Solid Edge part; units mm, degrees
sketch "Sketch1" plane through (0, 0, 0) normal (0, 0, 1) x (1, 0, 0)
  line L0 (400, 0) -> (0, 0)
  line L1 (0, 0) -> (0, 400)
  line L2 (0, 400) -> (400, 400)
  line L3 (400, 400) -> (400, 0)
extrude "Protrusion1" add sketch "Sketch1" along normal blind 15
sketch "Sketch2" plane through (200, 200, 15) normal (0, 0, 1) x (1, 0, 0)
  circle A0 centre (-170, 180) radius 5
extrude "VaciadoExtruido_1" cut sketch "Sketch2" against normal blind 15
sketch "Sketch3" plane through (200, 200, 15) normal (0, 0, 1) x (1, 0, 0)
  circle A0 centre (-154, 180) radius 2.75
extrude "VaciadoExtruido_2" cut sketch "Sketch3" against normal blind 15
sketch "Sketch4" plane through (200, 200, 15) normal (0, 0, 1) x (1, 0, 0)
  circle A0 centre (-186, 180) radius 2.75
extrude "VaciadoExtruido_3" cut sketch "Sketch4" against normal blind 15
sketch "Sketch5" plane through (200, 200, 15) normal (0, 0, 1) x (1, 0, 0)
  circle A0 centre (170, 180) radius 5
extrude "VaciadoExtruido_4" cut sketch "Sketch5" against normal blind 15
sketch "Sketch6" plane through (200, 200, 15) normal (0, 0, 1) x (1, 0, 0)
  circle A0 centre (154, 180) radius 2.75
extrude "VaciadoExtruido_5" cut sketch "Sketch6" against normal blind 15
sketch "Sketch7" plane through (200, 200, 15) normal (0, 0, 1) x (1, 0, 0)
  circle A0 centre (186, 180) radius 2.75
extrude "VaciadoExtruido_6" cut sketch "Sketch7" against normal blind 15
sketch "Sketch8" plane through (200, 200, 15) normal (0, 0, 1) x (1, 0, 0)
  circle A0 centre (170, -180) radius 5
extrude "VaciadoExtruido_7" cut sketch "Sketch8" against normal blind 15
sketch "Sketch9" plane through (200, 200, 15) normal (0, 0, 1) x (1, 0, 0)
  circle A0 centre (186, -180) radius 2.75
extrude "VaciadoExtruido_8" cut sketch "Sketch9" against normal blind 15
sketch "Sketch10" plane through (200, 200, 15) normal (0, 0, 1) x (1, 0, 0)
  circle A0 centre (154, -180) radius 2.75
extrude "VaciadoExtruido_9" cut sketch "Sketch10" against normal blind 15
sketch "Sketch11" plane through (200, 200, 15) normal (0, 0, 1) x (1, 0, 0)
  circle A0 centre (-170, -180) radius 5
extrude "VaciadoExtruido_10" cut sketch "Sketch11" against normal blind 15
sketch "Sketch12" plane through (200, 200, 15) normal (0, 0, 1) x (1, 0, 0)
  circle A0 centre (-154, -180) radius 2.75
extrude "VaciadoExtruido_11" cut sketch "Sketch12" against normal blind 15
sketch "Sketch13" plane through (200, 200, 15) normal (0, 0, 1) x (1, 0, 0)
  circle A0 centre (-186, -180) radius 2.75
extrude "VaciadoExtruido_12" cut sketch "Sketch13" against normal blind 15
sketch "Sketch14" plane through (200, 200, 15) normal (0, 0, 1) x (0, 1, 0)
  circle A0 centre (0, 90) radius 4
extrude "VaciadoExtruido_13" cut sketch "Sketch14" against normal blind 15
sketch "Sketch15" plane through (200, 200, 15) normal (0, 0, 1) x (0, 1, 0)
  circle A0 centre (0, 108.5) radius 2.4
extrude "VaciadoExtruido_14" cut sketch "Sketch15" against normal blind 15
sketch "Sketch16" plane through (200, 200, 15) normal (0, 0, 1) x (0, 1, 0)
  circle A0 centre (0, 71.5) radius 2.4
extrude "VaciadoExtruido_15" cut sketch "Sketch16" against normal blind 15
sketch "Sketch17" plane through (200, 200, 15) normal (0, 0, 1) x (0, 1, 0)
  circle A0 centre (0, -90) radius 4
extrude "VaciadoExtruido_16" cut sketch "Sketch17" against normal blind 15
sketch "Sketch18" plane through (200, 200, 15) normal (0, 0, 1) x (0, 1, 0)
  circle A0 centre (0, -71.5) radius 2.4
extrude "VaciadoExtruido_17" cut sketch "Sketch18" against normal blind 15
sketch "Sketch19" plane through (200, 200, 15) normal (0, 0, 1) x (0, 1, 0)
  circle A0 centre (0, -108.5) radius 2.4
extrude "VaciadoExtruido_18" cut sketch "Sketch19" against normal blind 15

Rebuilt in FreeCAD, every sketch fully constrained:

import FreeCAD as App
import Part
import Sketcher
from FreeCAD import Vector

doc = App.newDocument("Part")
body = doc.addObject("PartDesign::Body", "Body")

# Sketch on XY plane
sketch1 = body.newObject("Sketcher::SketchObject", "Sketch")
sketch1.AttachmentSupport = (doc.getObject("XY_Plane"), [""])
sketch1.MapMode = "FlatFace"
sketch1.addGeometry(Part.LineSegment(Vector(0, 0, 0), Vector(400, 0, 0)), False)
sketch1.addGeometry(Part.LineSegment(Vector(400, 0, 0), Vector(400, 400, 0)), False)
sketch1.addGeometry(Part.LineSegment(Vector(400, 400, 0), Vector(0, 400, 0)), False)
sketch1.addGeometry(Part.LineSegment(Vector(0, 400, 0), Vector(0, 0, 0)), False)
sketch1.addConstraint(Sketcher.Constraint("Coincident", 0, 2, 1, 1))
sketch1.addConstraint(Sketcher.Constraint("Coincident", 1, 2, 2, 1))
sketch1.addConstraint(Sketcher.Constraint("Coincident", 2, 2, 3, 1))
sketch1.addConstraint(Sketcher.Constraint("Coincident", 3, 2, 0, 1))
sketch1.addConstraint(Sketcher.Constraint("Horizontal", 0))
sketch1.addConstraint(Sketcher.Constraint("Vertical", 1))
sketch1.addConstraint(Sketcher.Constraint("Horizontal", 2))
sketch1.addConstraint(Sketcher.Constraint("Vertical", 3))
sketch1.addConstraint(Sketcher.Constraint("Coincident", 3, 2, -1, 1))
sketch1.addConstraint(Sketcher.Constraint("Equal", 2, 1))
sketch1.addConstraint(Sketcher.Constraint("DistanceX", 0, 1, 0, 2, 400.0))
pad1 = body.newObject("PartDesign::Pad", "Pad")
pad1.Profile = sketch1
pad1.Length = 15

# Sketch on XY plane
sketch2 = body.newObject("Sketcher::SketchObject", "Sketch001")
sketch2.AttachmentSupport = (doc.getObject("XY_Plane"), [""])
sketch2.MapMode = "FlatFace"
sketch2.AttachmentOffset = App.Placement(Vector(0, 0, 15), App.Rotation())
sketch2.addGeometry(Part.Circle(Vector(30, 380, 0), Vector(0, 0, 1), 5), False)
sketch2.addConstraint(Sketcher.Constraint("Diameter", 0, 10.0))
sketch2.addConstraint(Sketcher.Constraint("DistanceX", -1, 1, 0, 3, 30.0))
sketch2.addConstraint(Sketcher.Constraint("DistanceY", -1, 1, 0, 3, 380.0))
pocket1 = body.newObject("PartDesign::Pocket", "Pocket")
pocket1.Profile = sketch2
pocket1.Length = 15

# Sketch on XY plane
sketch3 = body.newObject("Sketcher::SketchObject", "Sketch002")
sketch3.AttachmentSupport = (doc.getObject("XY_Plane"), [""])
sketch3.MapMode = "FlatFace"
sketch3.AttachmentOffset = App.Placement(Vector(0, 0, 15), App.Rotation())
sketch3.addGeometry(Part.Circle(Vector(46, 380, 0), Vector(0, 0, 1), 2.75), False)
sketch3.addConstraint(Sketcher.Constraint("Diameter", 0, 5.5))
sketch3.addConstraint(Sketcher.Constraint("DistanceX", -1, 1, 0, 3, 46.0))
sketch3.addConstraint(Sketcher.Constraint("DistanceY", -1, 1, 0, 3, 380.0))
pocket2 = body.newObject("PartDesign::Pocket", "Pocket001")
pocket2.Profile = sketch3
pocket2.Length = 15

# Sketch on XY plane
sketch4 = body.newObject("Sketcher::SketchObject", "Sketch003")
sketch4.AttachmentSupport = (doc.getObject("XY_Plane"), [""])
sketch4.MapMode = "FlatFace"
sketch4.AttachmentOffset = App.Placement(Vector(0, 0, 15), App.Rotation())
sketch4.addGeometry(Part.Circle(Vector(14, 380, 0), Vector(0, 0, 1), 2.75), False)
sketch4.addConstraint(Sketcher.Constraint("Diameter", 0, 5.5))
sketch4.addConstraint(Sketcher.Constraint("DistanceX", -1, 1, 0, 3, 14.0))
sketch4.addConstraint(Sketcher.Constraint("DistanceY", -1, 1, 0, 3, 380.0))
pocket3 = body.newObject("PartDesign::Pocket", "Pocket002")
pocket3.Profile = sketch4
pocket3.Length = 15

# Sketch on XY plane
sketch5 = body.newObject("Sketcher::SketchObject", "Sketch004")
sketch5.AttachmentSupport = (doc.getObject("XY_Plane"), [""])
sketch5.MapMode = "FlatFace"
sketch5.AttachmentOffset = App.Placement(Vector(0, 0, 15), App.Rotation())
sketch5.addGeometry(Part.Circle(Vector(370, 380, 0), Vector(0, 0, 1), 5), False)
sketch5.addConstraint(Sketcher.Constraint("Diameter", 0, 10.0))
sketch5.addConstraint(Sketcher.Constraint("DistanceX", -1, 1, 0, 3, 370.0))
sketch5.addConstraint(Sketcher.Constraint("DistanceY", -1, 1, 0, 3, 380.0))
pocket4 = body.newObject("PartDesign::Pocket", "Pocket003")
pocket4.Profile = sketch5
pocket4.Length = 15

# Sketch on XY plane
sketch6 = body.newObject("Sketcher::SketchObject", "Sketch005")
sketch6.AttachmentSupport = (doc.getObject("XY_Plane"), [""])
sketch6.MapMode = "FlatFace"
sketch6.AttachmentOffset = App.Placement(Vector(0, 0, 15), App.Rotation())
sketch6.addGeometry(Part.Circle(Vector(354, 380, 0), Vector(0, 0, 1), 2.75), False)
sketch6.addConstraint(Sketcher.Constraint("Diameter", 0, 5.5))
sketch6.addConstraint(Sketcher.Constraint("DistanceX", -1, 1, 0, 3, 354.0))
sketch6.addConstraint(Sketcher.Constraint("DistanceY", -1, 1, 0, 3, 380.0))
pocket5 = body.newObject("PartDesign::Pocket", "Pocket004")
pocket5.Profile = sketch6
pocket5.Length = 15

# Sketch on XY plane
sketch7 = body.newObject("Sketcher::SketchObject", "Sketch006")
sketch7.AttachmentSupport = (doc.getObject("XY_Plane"), [""])
sketch7.MapMode = "FlatFace"
sketch7.AttachmentOffset = App.Placement(Vector(0, 0, 15), App.Rotation())
sketch7.addGeometry(Part.Circle(Vector(386, 380, 0), Vector(0, 0, 1), 2.75), False)
sketch7.addConstraint(Sketcher.Constraint("Diameter", 0, 5.5))
sketch7.addConstraint(Sketcher.Constraint("DistanceX", -1, 1, 0, 3, 386.0))
sketch7.addConstraint(Sketcher.Constraint("DistanceY", -1, 1, 0, 3, 380.0))
pocket6 = body.newObject("PartDesign::Pocket", "Pocket005")
pocket6.Profile = sketch7
pocket6.Length = 15

# Sketch on XY plane
sketch8 = body.newObject("Sketcher::SketchObject", "Sketch007")
sketch8.AttachmentSupport = (doc.getObject("XY_Plane"), [""])
sketch8.MapMode = "FlatFace"
sketch8.AttachmentOffset = App.Placement(Vector(0, 0, 15), App.Rotation())
sketch8.addGeometry(Part.Circle(Vector(370, 20, 0), Vector(0, 0, 1), 5), False)
sketch8.addConstraint(Sketcher.Constraint("Diameter", 0, 10.0))
sketch8.addConstraint(Sketcher.Constraint("DistanceX", -1, 1, 0, 3, 370.0))
sketch8.addConstraint(Sketcher.Constraint("DistanceY", -1, 1, 0, 3, 20.0))
pocket7 = body.newObject("PartDesign::Pocket", "Pocket006")
pocket7.Profile = sketch8
pocket7.Length = 15

# Sketch on XY plane
sketch9 = body.newObject("Sketcher::SketchObject", "Sketch008")
sketch9.AttachmentSupport = (doc.getObject("XY_Plane"), [""])
sketch9.MapMode = "FlatFace"
sketch9.AttachmentOffset = App.Placement(Vector(0, 0, 15), App.Rotation())
sketch9.addGeometry(Part.Circle(Vector(386, 20, 0), Vector(0, 0, 1), 2.75), False)
sketch9.addConstraint(Sketcher.Constraint("Diameter", 0, 5.5))
sketch9.addConstraint(Sketcher.Constraint("DistanceX", -1, 1, 0, 3, 386.0))
sketch9.addConstraint(Sketcher.Constraint("DistanceY", -1, 1, 0, 3, 20.0))
pocket8 = body.newObject("PartDesign::Pocket", "Pocket007")
pocket8.Profile = sketch9
pocket8.Length = 15

# Sketch on XY plane
sketch10 = body.newObject("Sketcher::SketchObject", "Sketch009")
sketch10.AttachmentSupport = (doc.getObject("XY_Plane"), [""])
sketch10.MapMode = "FlatFace"
sketch10.AttachmentOffset = App.Placement(Vector(0, 0, 15), App.Rotation())
sketch10.addGeometry(Part.Circle(Vector(354, 20, 0), Vector(0, 0, 1), 2.75), False)
sketch10.addConstraint(Sketcher.Constraint("Diameter", 0, 5.5))
sketch10.addConstraint(Sketcher.Constraint("DistanceX", -1, 1, 0, 3, 354.0))
sketch10.addConstraint(Sketcher.Constraint("DistanceY", -1, 1, 0, 3, 20.0))
pocket9 = body.newObject("PartDesign::Pocket", "Pocket008")
pocket9.Profile = sketch10
pocket9.Length = 15

# Sketch on XY plane
sketch11 = body.newObject("Sketcher::SketchObject", "Sketch010")
sketch11.AttachmentSupport = (doc.getObject("XY_Plane"), [""])
sketch11.MapMode = "FlatFace"
sketch11.AttachmentOffset = App.Placement(Vector(0, 0, 15), App.Rotation())
sketch11.addGeometry(Part.Circle(Vector(30, 20, 0), Vector(0, 0, 1), 5), False)
sketch11.addConstraint(Sketcher.Constraint("Diameter", 0, 10.0))
sketch11.addConstraint(Sketcher.Constraint("DistanceX", -1, 1, 0, 3, 30.0))
sketch11.addConstraint(Sketcher.Constraint("DistanceY", -1, 1, 0, 3, 20.0))
pocket10 = body.newObject("PartDesign::Pocket", "Pocket009")
pocket10.Profile = sketch11
pocket10.Length = 15

# Sketch on XY plane
sketch12 = body.newObject("Sketcher::SketchObject", "Sketch011")
sketch12.AttachmentSupport = (doc.getObject("XY_Plane"), [""])
sketch12.MapMode = "FlatFace"
sketch12.AttachmentOffset = App.Placement(Vector(0, 0, 15), App.Rotation())
sketch12.addGeometry(Part.Circle(Vector(46, 20, 0), Vector(0, 0, 1), 2.75), False)
sketch12.addConstraint(Sketcher.Constraint("Diameter", 0, 5.5))
sketch12.addConstraint(Sketcher.Constraint("DistanceX", -1, 1, 0, 3, 46.0))
sketch12.addConstraint(Sketcher.Constraint("DistanceY", -1, 1, 0, 3, 20.0))
pocket11 = body.newObject("PartDesign::Pocket", "Pocket010")
pocket11.Profile = sketch12
pocket11.Length = 15

# Sketch on XY plane
sketch13 = body.newObject("Sketcher::SketchObject", "Sketch012")
sketch13.AttachmentSupport = (doc.getObject("XY_Plane"), [""])
sketch13.MapMode = "FlatFace"
sketch13.AttachmentOffset = App.Placement(Vector(0, 0, 15), App.Rotation())
sketch13.addGeometry(Part.Circle(Vector(14, 20, 0), Vector(0, 0, 1), 2.75), False)
sketch13.addConstraint(Sketcher.Constraint("Diameter", 0, 5.5))
sketch13.addConstraint(Sketcher.Constraint("DistanceX", -1, 1, 0, 3, 14.0))
sketch13.addConstraint(Sketcher.Constraint("DistanceY", -1, 1, 0, 3, 20.0))
pocket12 = body.newObject("PartDesign::Pocket", "Pocket011")
pocket12.Profile = sketch13
pocket12.Length = 15

# Sketch on XY plane
sketch14 = body.newObject("Sketcher::SketchObject", "Sketch013")
sketch14.AttachmentSupport = (doc.getObject("XY_Plane"), [""])
sketch14.MapMode = "FlatFace"
sketch14.AttachmentOffset = App.Placement(Vector(0, 0, 15), App.Rotation())
sketch14.addGeometry(Part.Circle(Vector(110, 200, 0), Vector(0, 0, 1), 4), False)
sketch14.addConstraint(Sketcher.Constraint("Diameter", 0, 8.0))
sketch14.addConstraint(Sketcher.Constraint("DistanceX", -1, 1, 0, 3, 110.0))
sketch14.addConstraint(Sketcher.Constraint("DistanceY", -1, 1, 0, 3, 200.0))
pocket13 = body.newObject("PartDesign::Pocket", "Pocket012")
pocket13.Profile = sketch14
pocket13.Length = 15

# Sketch on XY plane
sketch15 = body.newObject("Sketcher::SketchObject", "Sketch014")
sketch15.AttachmentSupport = (doc.getObject("XY_Plane"), [""])
sketch15.MapMode = "FlatFace"
sketch15.AttachmentOffset = App.Placement(Vector(0, 0, 15), App.Rotation())
sketch15.addGeometry(Part.Circle(Vector(91.5, 200, 0), Vector(0, 0, 1), 2.4), False)
sketch15.addConstraint(Sketcher.Constraint("Diameter", 0, 4.8))
sketch15.addConstraint(Sketcher.Constraint("DistanceY", -1, 1, 0, 3, 200.0))
sketch15.addConstraint(Sketcher.Constraint("DistanceX", -1, 1, 0, 3, 91.5))
pocket14 = body.newObject("PartDesign::Pocket", "Pocket013")
pocket14.Profile = sketch15
pocket14.Length = 15

# Sketch on XY plane
sketch16 = body.newObject("Sketcher::SketchObject", "Sketch015")
sketch16.AttachmentSupport = (doc.getObject("XY_Plane"), [""])
sketch16.MapMode = "FlatFace"
sketch16.AttachmentOffset = App.Placement(Vector(0, 0, 15), App.Rotation())
sketch16.addGeometry(Part.Circle(Vector(128.5, 200, 0), Vector(0, 0, 1), 2.4), False)
sketch16.addConstraint(Sketcher.Constraint("Diameter", 0, 4.8))
sketch16.addConstraint(Sketcher.Constraint("DistanceY", -1, 1, 0, 3, 200.0))
sketch16.addConstraint(Sketcher.Constraint("DistanceX", -1, 1, 0, 3, 128.5))
pocket15 = body.newObject("PartDesign::Pocket", "Pocket014")
pocket15.Profile = sketch16
pocket15.Length = 15

# Sketch on XY plane
sketch17 = body.newObject("Sketcher::SketchObject", "Sketch016")
sketch17.AttachmentSupport = (doc.getObject("XY_Plane"), [""])
sketch17.MapMode = "FlatFace"
sketch17.AttachmentOffset = App.Placement(Vector(0, 0, 15), App.Rotation())
sketch17.addGeometry(Part.Circle(Vector(290, 200, 0), Vector(0, 0, 1), 4), False)
sketch17.addConstraint(Sketcher.Constraint("Diameter", 0, 8.0))
sketch17.addConstraint(Sketcher.Constraint("DistanceX", -1, 1, 0, 3, 290.0))
sketch17.addConstraint(Sketcher.Constraint("DistanceY", -1, 1, 0, 3, 200.0))
pocket16 = body.newObject("PartDesign::Pocket", "Pocket015")
pocket16.Profile = sketch17
pocket16.Length = 15

# Sketch on XY plane
sketch18 = body.newObject("Sketcher::SketchObject", "Sketch017")
sketch18.AttachmentSupport = (doc.getObject("XY_Plane"), [""])
sketch18.MapMode = "FlatFace"
sketch18.AttachmentOffset = App.Placement(Vector(0, 0, 15), App.Rotation())
sketch18.addGeometry(Part.Circle(Vector(271.5, 200, 0), Vector(0, 0, 1), 2.4), False)
sketch18.addConstraint(Sketcher.Constraint("Diameter", 0, 4.8))
sketch18.addConstraint(Sketcher.Constraint("DistanceY", -1, 1, 0, 3, 200.0))
sketch18.addConstraint(Sketcher.Constraint("DistanceX", -1, 1, 0, 3, 271.5))
pocket17 = body.newObject("PartDesign::Pocket", "Pocket016")
pocket17.Profile = sketch18
pocket17.Length = 15

# Sketch on XY plane
sketch19 = body.newObject("Sketcher::SketchObject", "Sketch018")
sketch19.AttachmentSupport = (doc.getObject("XY_Plane"), [""])
sketch19.MapMode = "FlatFace"
sketch19.AttachmentOffset = App.Placement(Vector(0, 0, 15), App.Rotation())
sketch19.addGeometry(Part.Circle(Vector(308.5, 200, 0), Vector(0, 0, 1), 2.4), False)
sketch19.addConstraint(Sketcher.Constraint("Diameter", 0, 4.8))
sketch19.addConstraint(Sketcher.Constraint("DistanceY", -1, 1, 0, 3, 200.0))
sketch19.addConstraint(Sketcher.Constraint("DistanceX", -1, 1, 0, 3, 308.5))
pocket18 = body.newObject("PartDesign::Pocket", "Pocket017")
pocket18.Profile = sketch19
pocket18.Length = 15

doc.recompute()
